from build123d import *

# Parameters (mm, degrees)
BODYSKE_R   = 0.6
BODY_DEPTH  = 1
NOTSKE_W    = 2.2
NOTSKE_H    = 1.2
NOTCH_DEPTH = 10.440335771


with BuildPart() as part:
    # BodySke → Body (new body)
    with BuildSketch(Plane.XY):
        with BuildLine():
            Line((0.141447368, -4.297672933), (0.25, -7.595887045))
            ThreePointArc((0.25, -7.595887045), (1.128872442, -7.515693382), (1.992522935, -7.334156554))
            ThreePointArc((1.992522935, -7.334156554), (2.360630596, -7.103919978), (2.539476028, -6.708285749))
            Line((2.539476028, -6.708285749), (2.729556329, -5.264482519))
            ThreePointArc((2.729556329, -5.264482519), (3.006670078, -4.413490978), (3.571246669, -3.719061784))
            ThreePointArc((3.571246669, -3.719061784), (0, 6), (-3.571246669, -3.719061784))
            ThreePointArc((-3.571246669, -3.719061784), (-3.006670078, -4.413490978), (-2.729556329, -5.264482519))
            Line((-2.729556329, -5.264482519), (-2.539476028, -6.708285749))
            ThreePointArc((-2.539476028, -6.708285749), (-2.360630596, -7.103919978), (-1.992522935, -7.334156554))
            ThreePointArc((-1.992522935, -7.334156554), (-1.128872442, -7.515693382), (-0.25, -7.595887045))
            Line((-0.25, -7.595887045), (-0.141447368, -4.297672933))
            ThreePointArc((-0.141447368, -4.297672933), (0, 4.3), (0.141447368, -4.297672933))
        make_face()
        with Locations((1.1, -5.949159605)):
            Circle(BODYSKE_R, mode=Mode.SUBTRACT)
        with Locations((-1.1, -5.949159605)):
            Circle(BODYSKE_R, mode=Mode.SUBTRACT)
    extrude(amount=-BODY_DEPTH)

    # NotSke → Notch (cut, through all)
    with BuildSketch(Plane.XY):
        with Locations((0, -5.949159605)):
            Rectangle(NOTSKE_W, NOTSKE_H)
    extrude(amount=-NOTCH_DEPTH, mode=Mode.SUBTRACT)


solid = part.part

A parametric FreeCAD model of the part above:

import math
import FreeCAD as App
import Part
import Sketcher
Q = App.Units.Quantity


def add_polygon(sketch, points):
    """Adds a closed chain of lines whose ends are joined by coincident constraints."""
    first, n = sketch.GeometryCount, len(points)
    for a, b in zip(points, points[1:] + points[:1]):
        sketch.addGeometry(Part.LineSegment(App.Vector(*a, 0), App.Vector(*b, 0)), False)
    for i in range(n):
        sketch.addConstraint(Sketcher.Constraint("Coincident", first + i, 2, first + (i + 1) % n, 1))

doc = App.newDocument("Part")
params = doc.addObject("Spreadsheet::Sheet", "Params")
for row, (alias, value) in enumerate([
    ("sketch1_diameter", "1.2 mm"),
    ("sketch1_radius", "7.6 mm"),
    ("sketch1_radius2", "4.3 mm"),
    ("sketch1_radius3", "0.75 mm"),
    ("pad1_length", "1 mm"),
    ("sketch2_width", "2.2 mm"),
    ("sketch2_height", "1.2 mm"),
], start=1):
    params.set(f"A{row}", alias)
    params.set(f"B{row}", "=" + value)
    params.setAlias(f"B{row}", alias)

body = doc.addObject("PartDesign::Body", "Body")

# Sketch on XY plane
sketch1 = body.newObject("Sketcher::SketchObject", "Sketch")
sketch1.AttachmentSupport = (doc.getObject("XY_Plane"), [""])
sketch1.MapMode = "FlatFace"
sketch1.addGeometry([
    Part.LineSegment(App.Vector(0.141447, -4.297673, 0), App.Vector(0.25, -7.595887, 0)),  # 0
    Part.ArcOfCircle(Part.Circle(App.Vector(0, 0, 0), App.Vector(0, 0, 1), 7.6), math.radians(-88.11493), math.radians(-74.800897)),  # 1
    Part.ArcOfCircle(Part.Circle(App.Vector(1.795892, -6.610391, 0), App.Vector(0, 0, 1), 0.75), math.radians(-74.800897), math.radians(-7.5)),  # 2
    Part.LineSegment(App.Vector(2.539476, -6.708286, 0), App.Vector(2.729556, -5.264483, 0)),  # 3
    Part.ArcOfCircle(Part.Circle(App.Vector(5.155609, -5.583878, 0), App.Vector(0, 0, 1), 2.446987), math.radians(130.351478), math.radians(172.5)),  # 4
    Part.ArcOfCircle(Part.Circle(App.Vector(0, 0.484346, 0), App.Vector(0, 0, 1), 5.515654), math.radians(-49.648522), math.radians(229.648522)),  # 5
    Part.ArcOfCircle(Part.Circle(App.Vector(-5.155609, -5.583878, 0), App.Vector(0, 0, 1), 2.446987), math.radians(7.5), math.radians(49.648522)),  # 6
    Part.LineSegment(App.Vector(-2.729556, -5.264483, 0), App.Vector(-2.539476, -6.708286, 0)),  # 7
    Part.ArcOfCircle(Part.Circle(App.Vector(-1.795892, -6.610391, 0), App.Vector(0, 0, 1), 0.75), math.radians(-172.5), math.radians(-105.199103)),  # 8
    Part.ArcOfCircle(Part.Circle(App.Vector(0, 0, 0), App.Vector(0, 0, 1), 7.6), math.radians(-105.199103), math.radians(-91.88507)),  # 9
    Part.LineSegment(App.Vector(-0.25, -7.595887, 0), App.Vector(-0.141447, -4.297673, 0)),  # 10
    Part.ArcOfCircle(Part.Circle(App.Vector(0, 0, 0), App.Vector(0, 0, 1), 4.3), math.radians(-88.11493), math.radians(268.11493)),  # 11
    Part.Circle(App.Vector(-1.1, -5.94916, 0), App.Vector(0, 0, 1), 0.6),  # 12
    Part.Circle(App.Vector(1.1, -5.94916, 0), App.Vector(0, 0, 1), 0.6),  # 13
], False)
sketch1.addConstraint([
    Sketcher.Constraint("Coincident", 0, 2, 1, 1),
    Sketcher.Constraint("Tangent", 1, 2, 2, 1),
    Sketcher.Constraint("Tangent", 2, 2, 3, 1),
    Sketcher.Constraint("Tangent", 3, 2, 4, 2),
    Sketcher.Constraint("Tangent", 4, 1, 5, 1),
    Sketcher.Constraint("Tangent", 5, 2, 6, 2),
    Sketcher.Constraint("Tangent", 6, 1, 7, 1),
    Sketcher.Constraint("Tangent", 7, 2, 8, 1),
    Sketcher.Constraint("Tangent", 8, 2, 9, 1),
    Sketcher.Constraint("Coincident", 9, 2, 10, 1),
    Sketcher.Constraint("Coincident", 10, 2, 11, 2),
    Sketcher.Constraint("Coincident", 11, 1, 0, 1),
    Sketcher.Constraint("Coincident", 1, 3, -1, 1),
    Sketcher.Constraint("Coincident", 9, 3, -1, 1),
    Sketcher.Constraint("Coincident", 11, 3, -1, 1),
    Sketcher.Constraint("Equal", 4, 6),
    Sketcher.Constraint("Equal", 2, 8),
    Sketcher.Constraint("Equal", 1, 9),
    Sketcher.Constraint("Equal", 12, 13),
    Sketcher.Constraint("Symmetric", 4, 3, 6, 3, -2),
    Sketcher.Constraint("Symmetric", 12, 3, 13, 3, -2),
    Sketcher.Constraint("Horizontal", 2, 3, 8, 3),
    Sketcher.Constraint("Horizontal", 0, 2, 9, 2),
    Sketcher.Constraint("Horizontal", 10, 2, 11, 1),
    Sketcher.Constraint("Diameter", 12, Q("1.2 mm")),
    Sketcher.Constraint("Radius", 1, Q("7.6 mm")),
    Sketcher.Constraint("Radius", 11, Q("4.3 mm")),
    Sketcher.Constraint("Radius", 2, Q("0.75 mm")),
    Sketcher.Constraint("Angle", 3, Q("82.5 deg")),
    Sketcher.Constraint("DistanceX", 12, 3, -1, 1, Q("1.1 mm")),
    Sketcher.Constraint("DistanceX", 9, 2, 0, 2, Q("0.5 mm")),
    Sketcher.Constraint("Radius", 4, Q("2.446987 mm")),
    Sketcher.Constraint("Radius", 5, Q("5.515654 mm")),
    Sketcher.Constraint("DistanceX", 6, 3, 2, 3, Q("6.951501 mm")),
    Sketcher.Constraint("DistanceY", 0, 2, 2, 2, Q("0.887601 mm")),
    Sketcher.Constraint("DistanceY", 12, 3, -1, 1, Q("5.94916 mm")),
    Sketcher.Constraint("DistanceX", 6, 1, 10, 2, Q("2.588109 mm")),
])
sketch1.setExpression("Constraints[24]", "Params.sketch1_diameter")
sketch1.setExpression("Constraints[25]", "Params.sketch1_radius")
sketch1.setExpression("Constraints[26]", "Params.sketch1_radius2")
sketch1.setExpression("Constraints[27]", "Params.sketch1_radius3")
pad1 = body.newObject("PartDesign::Pad", "Pad")
pad1.Profile = sketch1
pad1.setExpression("Length", "Params.pad1_length")
pad1.Reversed = True

# Sketch on XY plane
sketch2 = body.newObject("Sketcher::SketchObject", "Sketch001")
sketch2.AttachmentSupport = (doc.getObject("XY_Plane"), [""])
sketch2.MapMode = "FlatFace"
add_polygon(sketch2, [(-1.1, -5.34916), (-1.1, -6.54916), (1.1, -6.54916), (1.1, -5.34916)])  # lines 0-3
sketch2.addConstraint([
    Sketcher.Constraint("Vertical", 0),
    Sketcher.Constraint("Horizontal", 1),
    Sketcher.Constraint("Vertical", 2),
    Sketcher.Constraint("Horizontal", 3),
    Sketcher.Constraint("DistanceX", 1, 1, 1, 2, Q("2.2 mm")),
    Sketcher.Constraint("DistanceY", 0, 2, 0, 1, Q("1.2 mm")),
    Sketcher.Constraint("DistanceX", 0, 2, -1, 1, Q("1.1 mm")),
    Sketcher.Constraint("DistanceY", 0, 2, -1, 1, Q("6.54916 mm")),
])
sketch2.setExpression("Constraints[8]", "Params.sketch2_width")
sketch2.setExpression("Constraints[9]", "Params.sketch2_height")
pocket1 = body.newObject("PartDesign::Pocket", "Pocket")
pocket1.Profile = sketch2
pocket1.Type = "ThroughAll"

doc.recompute()
